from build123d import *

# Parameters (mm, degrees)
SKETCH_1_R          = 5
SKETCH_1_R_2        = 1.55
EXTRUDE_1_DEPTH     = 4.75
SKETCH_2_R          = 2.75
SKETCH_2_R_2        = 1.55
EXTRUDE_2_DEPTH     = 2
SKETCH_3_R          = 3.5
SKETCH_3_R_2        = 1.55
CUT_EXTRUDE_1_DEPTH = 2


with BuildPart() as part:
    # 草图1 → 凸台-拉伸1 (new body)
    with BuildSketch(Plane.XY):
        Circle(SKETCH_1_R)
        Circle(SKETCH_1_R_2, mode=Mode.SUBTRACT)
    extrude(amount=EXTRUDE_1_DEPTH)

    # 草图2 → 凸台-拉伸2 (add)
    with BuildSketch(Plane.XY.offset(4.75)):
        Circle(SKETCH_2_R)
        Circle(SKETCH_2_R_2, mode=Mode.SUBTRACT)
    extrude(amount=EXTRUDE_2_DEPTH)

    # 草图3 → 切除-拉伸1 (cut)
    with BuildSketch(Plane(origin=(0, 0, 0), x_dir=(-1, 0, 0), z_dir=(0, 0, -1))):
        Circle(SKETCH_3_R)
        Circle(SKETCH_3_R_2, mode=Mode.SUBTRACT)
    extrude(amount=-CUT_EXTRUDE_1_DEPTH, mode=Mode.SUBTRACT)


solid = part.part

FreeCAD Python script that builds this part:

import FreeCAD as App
import Part
import Sketcher

doc = App.newDocument("Part")
body = doc.addObject("PartDesign::Body", "Body")

# Sketch on XY plane
sketch1 = body.newObject("Sketcher::SketchObject", "Sketch")
sketch1.AttachmentSupport = (doc.getObject("XY_Plane"), [""])
sketch1.MapMode = "FlatFace"
sketch1.addGeometry([
    Part.Circle(App.Vector(0, 0, 0), App.Vector(0, 0, 1), 5),
    Part.Circle(App.Vector(0, 0, 0), App.Vector(0, 0, 1), 1.6),
], False)
sketch1.addConstraint([
    Sketcher.Constraint("Coincident", 0, 3, -1, 1),
    Sketcher.Constraint("Coincident", 1, 3, -1, 1),
    Sketcher.Constraint("Diameter", 0, 10.0),
    Sketcher.Constraint("Diameter", 1, 3.1),
])
pad1 = body.newObject("PartDesign::Pad", "Pad")
pad1.Profile = sketch1
pad1.Length = 4.75

# Sketch on XY plane
sketch2 = body.newObject("Sketcher::SketchObject", "Sketch001")
sketch2.AttachmentSupport = (doc.getObject("XY_Plane"), [""])
sketch2.MapMode = "FlatFace"
sketch2.AttachmentOffset = App.Placement(App.Vector(0, 0, 4.75), App.Rotation())
sketch2.addGeometry([
    Part.Circle(App.Vector(0, 0, 0), App.Vector(0, 0, 1), 2.8),
    Part.Circle(App.Vector(0, 0, 0), App.Vector(0, 0, 1), 1.6),
], False)
sketch2.addConstraint([
    Sketcher.Constraint("Coincident", 0, 3, -1, 1),
    Sketcher.Constraint("Coincident", 1, 3, -1, 1),
    Sketcher.Constraint("Diameter", 0, 5.5),
    Sketcher.Constraint("Diameter", 1, 3.1),
])
pad2 = body.newObject("PartDesign::Pad", "Pad001")
pad2.Profile = sketch2
pad2.Length = 2

# Sketch on XY plane
sketch3 = body.newObject("Sketcher::SketchObject", "Sketch002")
sketch3.AttachmentSupport = (doc.getObject("XY_Plane"), [""])
sketch3.MapMode = "FlatFace"
sketch3.addGeometry([
    Part.Circle(App.Vector(0, 0, 0), App.Vector(0, 0, 1), 3.5),
    Part.Circle(App.Vector(0, 0, 0), App.Vector(0, 0, 1), 1.6),
], False)
sketch3.addConstraint([
    Sketcher.Constraint("Coincident", 0, 3, -1, 1),
    Sketcher.Constraint("Coincident", 1, 3, -1, 1),
    Sketcher.Constraint("Diameter", 0, 7.0),
    Sketcher.Constraint("Diameter", 1, 3.1),
])
pocket1 = body.newObject("PartDesign::Pocket", "Pocket")
pocket1.Profile = sketch3
pocket1.Length = 2
pocket1.Reversed = True

doc.recompute()
